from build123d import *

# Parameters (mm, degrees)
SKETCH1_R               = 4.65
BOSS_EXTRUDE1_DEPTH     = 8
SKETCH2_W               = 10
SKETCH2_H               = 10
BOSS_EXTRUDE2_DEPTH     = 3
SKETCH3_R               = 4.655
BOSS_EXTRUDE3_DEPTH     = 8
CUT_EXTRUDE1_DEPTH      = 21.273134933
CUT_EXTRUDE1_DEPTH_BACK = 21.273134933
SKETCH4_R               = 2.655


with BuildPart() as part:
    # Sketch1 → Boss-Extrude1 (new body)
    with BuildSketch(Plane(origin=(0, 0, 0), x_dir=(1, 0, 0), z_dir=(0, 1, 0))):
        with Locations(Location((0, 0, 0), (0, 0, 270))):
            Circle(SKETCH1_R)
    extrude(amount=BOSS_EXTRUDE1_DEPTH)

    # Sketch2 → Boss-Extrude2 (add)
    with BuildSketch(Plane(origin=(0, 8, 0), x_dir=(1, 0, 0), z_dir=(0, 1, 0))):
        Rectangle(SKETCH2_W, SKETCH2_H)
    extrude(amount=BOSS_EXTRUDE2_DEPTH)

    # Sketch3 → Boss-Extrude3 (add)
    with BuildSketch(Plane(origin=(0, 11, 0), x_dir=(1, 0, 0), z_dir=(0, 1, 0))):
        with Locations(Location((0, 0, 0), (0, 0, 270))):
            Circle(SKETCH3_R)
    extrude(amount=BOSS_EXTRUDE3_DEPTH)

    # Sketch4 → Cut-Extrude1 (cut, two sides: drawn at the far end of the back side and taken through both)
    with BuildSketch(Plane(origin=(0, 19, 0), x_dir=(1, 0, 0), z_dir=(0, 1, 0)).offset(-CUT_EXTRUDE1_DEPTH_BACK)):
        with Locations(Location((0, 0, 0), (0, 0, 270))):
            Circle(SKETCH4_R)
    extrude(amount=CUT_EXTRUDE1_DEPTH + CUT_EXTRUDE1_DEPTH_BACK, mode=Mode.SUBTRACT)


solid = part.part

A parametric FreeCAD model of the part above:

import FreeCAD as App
import Part
import Sketcher

V = App.Vector

doc = App.newDocument("Part")
body = doc.addObject("PartDesign::Body", "Body")

# Sketch on XZ plane
sketch1 = body.newObject("Sketcher::SketchObject", "Sketch")
sketch1.AttachmentSupport = (doc.getObject("XZ_Plane"), [""])
sketch1.MapMode = "FlatFace"
sketch1.addGeometry(Part.Circle(V(0, 0, 0), V(0, 0, 1), 4.7), False)
sketch1.addConstraint(Sketcher.Constraint("Coincident", 0, 3, -1, 1))
sketch1.addConstraint(Sketcher.Constraint("Diameter", 0, 9.3))
pad1 = body.newObject("PartDesign::Pad", "Pad")
pad1.Profile = sketch1
pad1.Length = 8
pad1.Reversed = True

# Sketch on XZ plane
sketch2 = body.newObject("Sketcher::SketchObject", "Sketch001")
sketch2.AttachmentSupport = (doc.getObject("XZ_Plane"), [""])
sketch2.MapMode = "FlatFace"
sketch2.AttachmentOffset = App.Placement(V(0, 0, -8), App.Rotation())
sketch2.addGeometry(Part.LineSegment(V(-5, -5, 0), V(-5, 5, 0)), False)
sketch2.addGeometry(Part.LineSegment(V(-5, 5, 0), V(5, 5, 0)), False)
sketch2.addGeometry(Part.LineSegment(V(5, 5, 0), V(5, -5, 0)), False)
sketch2.addGeometry(Part.LineSegment(V(5, -5, 0), V(-5, -5, 0)), False)
sketch2.addConstraint(Sketcher.Constraint("Coincident", 0, 2, 1, 1))
sketch2.addConstraint(Sketcher.Constraint("Coincident", 1, 2, 2, 1))
sketch2.addConstraint(Sketcher.Constraint("Coincident", 2, 2, 3, 1))
sketch2.addConstraint(Sketcher.Constraint("Coincident", 3, 2, 0, 1))
sketch2.addConstraint(Sketcher.Constraint("Vertical", 0))
sketch2.addConstraint(Sketcher.Constraint("Horizontal", 1))
sketch2.addConstraint(Sketcher.Constraint("Vertical", 2))
sketch2.addConstraint(Sketcher.Constraint("Horizontal", 3))
sketch2.addConstraint(Sketcher.Constraint("Symmetric", 0, 2, 2, 2, -1, 1))
sketch2.addConstraint(Sketcher.Constraint("Equal", 3, 0))
sketch2.addConstraint(Sketcher.Constraint("DistanceX", 1, 1, 1, 2, 10.0))
pad2 = body.newObject("PartDesign::Pad", "Pad001")
pad2.Profile = sketch2
pad2.Length = 3
pad2.Reversed = True

# Sketch on XZ plane
sketch3 = body.newObject("Sketcher::SketchObject", "Sketch002")
sketch3.AttachmentSupport = (doc.getObject("XZ_Plane"), [""])
sketch3.MapMode = "FlatFace"
sketch3.AttachmentOffset = App.Placement(V(0, 0, -11), App.Rotation())
sketch3.addGeometry(Part.Circle(V(0, 0, 0), V(0, 0, 1), 4.7), False)
sketch3.addConstraint(Sketcher.Constraint("Coincident", 0, 3, -1, 1))
sketch3.addConstraint(Sketcher.Constraint("Diameter", 0, 9.31))
pad3 = body.newObject("PartDesign::Pad", "Pad002")
pad3.Profile = sketch3
pad3.Length = 8
pad3.Reversed = True

# Sketch on XZ plane
sketch4 = body.newObject("Sketcher::SketchObject", "Sketch003")
sketch4.AttachmentSupport = (doc.getObject("XZ_Plane"), [""])
sketch4.MapMode = "FlatFace"
sketch4.AttachmentOffset = App.Placement(V(0, 0, -19), App.Rotation())
sketch4.addGeometry(Part.Circle(V(0, 0, 0), V(0, 0, 1), 2.7), False)
sketch4.addConstraint(Sketcher.Constraint("Coincident", 0, 3, -1, 1))
sketch4.addConstraint(Sketcher.Constraint("Diameter", 0, 5.31))
pocket1 = body.newObject("PartDesign::Pocket", "Pocket")
pocket1.Profile = sketch4
pocket1.Type = "ThroughAll"
pocket1.Midplane = True

doc.recompute()
